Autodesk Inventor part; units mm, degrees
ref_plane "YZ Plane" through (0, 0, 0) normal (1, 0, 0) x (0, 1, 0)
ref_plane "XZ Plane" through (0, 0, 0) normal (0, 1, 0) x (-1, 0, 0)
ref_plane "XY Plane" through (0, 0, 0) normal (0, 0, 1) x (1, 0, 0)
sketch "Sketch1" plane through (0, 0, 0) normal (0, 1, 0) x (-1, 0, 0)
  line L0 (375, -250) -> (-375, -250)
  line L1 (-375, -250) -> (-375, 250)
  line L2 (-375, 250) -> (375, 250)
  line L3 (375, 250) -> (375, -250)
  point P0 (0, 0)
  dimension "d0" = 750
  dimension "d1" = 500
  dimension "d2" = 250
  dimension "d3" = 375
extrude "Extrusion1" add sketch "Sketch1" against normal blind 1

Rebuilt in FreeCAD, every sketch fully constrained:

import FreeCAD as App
import Part
import Sketcher

V = App.Vector

doc = App.newDocument("Part")
params = doc.addObject("Spreadsheet::Sheet", "Params")
for row, (alias, value) in enumerate([
    ("sketch1_width", "750 mm"),
    ("sketch1_height", "500 mm"),
    ("pad1_length", "1 mm"),
], start=1):
    params.set(f"A{row}", alias)
    params.set(f"B{row}", "=" + value)
    params.setAlias(f"B{row}", alias)

body = doc.addObject("PartDesign::Body", "Body")

sketch1 = doc.addObject("Sketcher::SketchObject", "Sketch")
body.addObject(sketch1)
sketch1.AttachmentSupport = (doc.XZ_Plane, [""])
sketch1.MapMode = "FlatFace"
sketch1.addGeometry([
    Part.LineSegment(V(375, -250, 0), V(-375, -250, 0)),
    Part.LineSegment(V(-375, -250, 0), V(-375, 250, 0)),
    Part.LineSegment(V(-375, 250, 0), V(375, 250, 0)),
    Part.LineSegment(V(375, 250, 0), V(375, -250, 0)),
], False)
sketch1.addConstraint([
    Sketcher.Constraint("Coincident", 0, 2, 1, 1),
    Sketcher.Constraint("Coincident", 1, 2, 2, 1),
    Sketcher.Constraint("Coincident", 2, 2, 3, 1),
    Sketcher.Constraint("Coincident", 3, 2, 0, 1),
    Sketcher.Constraint("Horizontal", 0),
    Sketcher.Constraint("Vertical", 1),
    Sketcher.Constraint("Horizontal", 2),
    Sketcher.Constraint("Vertical", 3),
    Sketcher.Constraint("Symmetric", 0, 2, 2, 2, -1, 1),
    Sketcher.Constraint("DistanceX", 0, 2, 0, 1, 750.0),
    Sketcher.Constraint("DistanceY", 1, 1, 1, 2, 500.0),
])
sketch1.setExpression("Constraints[9]", "Params.sketch1_width")
sketch1.setExpression("Constraints[10]", "Params.sketch1_height")
pad1 = doc.addObject("PartDesign::Pad", "Pad")
body.addObject(pad1)
pad1.Profile = sketch1
pad1.setExpression("Length", "Params.pad1_length")

doc.recompute()
